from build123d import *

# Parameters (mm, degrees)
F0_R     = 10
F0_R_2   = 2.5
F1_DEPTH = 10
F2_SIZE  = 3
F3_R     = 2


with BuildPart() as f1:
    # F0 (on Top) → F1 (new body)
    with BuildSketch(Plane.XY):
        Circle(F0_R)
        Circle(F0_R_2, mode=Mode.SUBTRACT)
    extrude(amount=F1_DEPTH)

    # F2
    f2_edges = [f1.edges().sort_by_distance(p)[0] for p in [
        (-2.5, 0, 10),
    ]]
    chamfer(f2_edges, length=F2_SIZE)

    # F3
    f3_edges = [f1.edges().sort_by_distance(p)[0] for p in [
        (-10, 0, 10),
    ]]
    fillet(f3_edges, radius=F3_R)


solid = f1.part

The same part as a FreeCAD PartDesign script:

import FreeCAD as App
import Part
import Sketcher
from FreeCAD import Vector


def edges_at(feature, points):
    """Names of the edges that pass closest to the given points."""
    edges = feature.Shape.Edges
    near = lambda p: min(range(len(edges)), key=lambda i: edges[i].distToShape(Part.Vertex(*p))[0])
    return sorted({f"Edge{near(p) + 1}" for p in points})

doc = App.newDocument("Part")
body = doc.addObject("PartDesign::Body", "Body")

# Sketch on XY plane
sketch1 = doc.addObject("Sketcher::SketchObject", "Sketch")
body.addObject(sketch1)
sketch1.AttachmentSupport = (doc.XY_Plane, [""])
sketch1.MapMode = "FlatFace"
sketch1.addGeometry([
    Part.Circle(Vector(0, 0, 0), Vector(0, 0, 1), 10),
    Part.Circle(Vector(0, 0, 0), Vector(0, 0, 1), 2.5),
], False)
sketch1.addConstraint([
    Sketcher.Constraint("Coincident", 0, 3, -1, 1),
    Sketcher.Constraint("Coincident", 1, 3, -1, 1),
    Sketcher.Constraint("Diameter", 0, 20.0),
    Sketcher.Constraint("Diameter", 1, 5.0),
])
pad1 = doc.addObject("PartDesign::Pad", "Pad")
body.addObject(pad1)
pad1.Profile = sketch1
pad1.Length = 10
doc.recompute()

chamfer = doc.addObject("PartDesign::Chamfer", "Chamfer")
body.addObject(chamfer)
chamfer.Base = (pad1, edges_at(pad1, [(-2.5, 0, 10)]))
chamfer.Size = 3
doc.recompute()

fillet = doc.addObject("PartDesign::Fillet", "Fillet")
body.addObject(fillet)
fillet.Base = (chamfer, edges_at(chamfer, [(-10, 0, 10)]))
fillet.Radius = 2

doc.recompute()
